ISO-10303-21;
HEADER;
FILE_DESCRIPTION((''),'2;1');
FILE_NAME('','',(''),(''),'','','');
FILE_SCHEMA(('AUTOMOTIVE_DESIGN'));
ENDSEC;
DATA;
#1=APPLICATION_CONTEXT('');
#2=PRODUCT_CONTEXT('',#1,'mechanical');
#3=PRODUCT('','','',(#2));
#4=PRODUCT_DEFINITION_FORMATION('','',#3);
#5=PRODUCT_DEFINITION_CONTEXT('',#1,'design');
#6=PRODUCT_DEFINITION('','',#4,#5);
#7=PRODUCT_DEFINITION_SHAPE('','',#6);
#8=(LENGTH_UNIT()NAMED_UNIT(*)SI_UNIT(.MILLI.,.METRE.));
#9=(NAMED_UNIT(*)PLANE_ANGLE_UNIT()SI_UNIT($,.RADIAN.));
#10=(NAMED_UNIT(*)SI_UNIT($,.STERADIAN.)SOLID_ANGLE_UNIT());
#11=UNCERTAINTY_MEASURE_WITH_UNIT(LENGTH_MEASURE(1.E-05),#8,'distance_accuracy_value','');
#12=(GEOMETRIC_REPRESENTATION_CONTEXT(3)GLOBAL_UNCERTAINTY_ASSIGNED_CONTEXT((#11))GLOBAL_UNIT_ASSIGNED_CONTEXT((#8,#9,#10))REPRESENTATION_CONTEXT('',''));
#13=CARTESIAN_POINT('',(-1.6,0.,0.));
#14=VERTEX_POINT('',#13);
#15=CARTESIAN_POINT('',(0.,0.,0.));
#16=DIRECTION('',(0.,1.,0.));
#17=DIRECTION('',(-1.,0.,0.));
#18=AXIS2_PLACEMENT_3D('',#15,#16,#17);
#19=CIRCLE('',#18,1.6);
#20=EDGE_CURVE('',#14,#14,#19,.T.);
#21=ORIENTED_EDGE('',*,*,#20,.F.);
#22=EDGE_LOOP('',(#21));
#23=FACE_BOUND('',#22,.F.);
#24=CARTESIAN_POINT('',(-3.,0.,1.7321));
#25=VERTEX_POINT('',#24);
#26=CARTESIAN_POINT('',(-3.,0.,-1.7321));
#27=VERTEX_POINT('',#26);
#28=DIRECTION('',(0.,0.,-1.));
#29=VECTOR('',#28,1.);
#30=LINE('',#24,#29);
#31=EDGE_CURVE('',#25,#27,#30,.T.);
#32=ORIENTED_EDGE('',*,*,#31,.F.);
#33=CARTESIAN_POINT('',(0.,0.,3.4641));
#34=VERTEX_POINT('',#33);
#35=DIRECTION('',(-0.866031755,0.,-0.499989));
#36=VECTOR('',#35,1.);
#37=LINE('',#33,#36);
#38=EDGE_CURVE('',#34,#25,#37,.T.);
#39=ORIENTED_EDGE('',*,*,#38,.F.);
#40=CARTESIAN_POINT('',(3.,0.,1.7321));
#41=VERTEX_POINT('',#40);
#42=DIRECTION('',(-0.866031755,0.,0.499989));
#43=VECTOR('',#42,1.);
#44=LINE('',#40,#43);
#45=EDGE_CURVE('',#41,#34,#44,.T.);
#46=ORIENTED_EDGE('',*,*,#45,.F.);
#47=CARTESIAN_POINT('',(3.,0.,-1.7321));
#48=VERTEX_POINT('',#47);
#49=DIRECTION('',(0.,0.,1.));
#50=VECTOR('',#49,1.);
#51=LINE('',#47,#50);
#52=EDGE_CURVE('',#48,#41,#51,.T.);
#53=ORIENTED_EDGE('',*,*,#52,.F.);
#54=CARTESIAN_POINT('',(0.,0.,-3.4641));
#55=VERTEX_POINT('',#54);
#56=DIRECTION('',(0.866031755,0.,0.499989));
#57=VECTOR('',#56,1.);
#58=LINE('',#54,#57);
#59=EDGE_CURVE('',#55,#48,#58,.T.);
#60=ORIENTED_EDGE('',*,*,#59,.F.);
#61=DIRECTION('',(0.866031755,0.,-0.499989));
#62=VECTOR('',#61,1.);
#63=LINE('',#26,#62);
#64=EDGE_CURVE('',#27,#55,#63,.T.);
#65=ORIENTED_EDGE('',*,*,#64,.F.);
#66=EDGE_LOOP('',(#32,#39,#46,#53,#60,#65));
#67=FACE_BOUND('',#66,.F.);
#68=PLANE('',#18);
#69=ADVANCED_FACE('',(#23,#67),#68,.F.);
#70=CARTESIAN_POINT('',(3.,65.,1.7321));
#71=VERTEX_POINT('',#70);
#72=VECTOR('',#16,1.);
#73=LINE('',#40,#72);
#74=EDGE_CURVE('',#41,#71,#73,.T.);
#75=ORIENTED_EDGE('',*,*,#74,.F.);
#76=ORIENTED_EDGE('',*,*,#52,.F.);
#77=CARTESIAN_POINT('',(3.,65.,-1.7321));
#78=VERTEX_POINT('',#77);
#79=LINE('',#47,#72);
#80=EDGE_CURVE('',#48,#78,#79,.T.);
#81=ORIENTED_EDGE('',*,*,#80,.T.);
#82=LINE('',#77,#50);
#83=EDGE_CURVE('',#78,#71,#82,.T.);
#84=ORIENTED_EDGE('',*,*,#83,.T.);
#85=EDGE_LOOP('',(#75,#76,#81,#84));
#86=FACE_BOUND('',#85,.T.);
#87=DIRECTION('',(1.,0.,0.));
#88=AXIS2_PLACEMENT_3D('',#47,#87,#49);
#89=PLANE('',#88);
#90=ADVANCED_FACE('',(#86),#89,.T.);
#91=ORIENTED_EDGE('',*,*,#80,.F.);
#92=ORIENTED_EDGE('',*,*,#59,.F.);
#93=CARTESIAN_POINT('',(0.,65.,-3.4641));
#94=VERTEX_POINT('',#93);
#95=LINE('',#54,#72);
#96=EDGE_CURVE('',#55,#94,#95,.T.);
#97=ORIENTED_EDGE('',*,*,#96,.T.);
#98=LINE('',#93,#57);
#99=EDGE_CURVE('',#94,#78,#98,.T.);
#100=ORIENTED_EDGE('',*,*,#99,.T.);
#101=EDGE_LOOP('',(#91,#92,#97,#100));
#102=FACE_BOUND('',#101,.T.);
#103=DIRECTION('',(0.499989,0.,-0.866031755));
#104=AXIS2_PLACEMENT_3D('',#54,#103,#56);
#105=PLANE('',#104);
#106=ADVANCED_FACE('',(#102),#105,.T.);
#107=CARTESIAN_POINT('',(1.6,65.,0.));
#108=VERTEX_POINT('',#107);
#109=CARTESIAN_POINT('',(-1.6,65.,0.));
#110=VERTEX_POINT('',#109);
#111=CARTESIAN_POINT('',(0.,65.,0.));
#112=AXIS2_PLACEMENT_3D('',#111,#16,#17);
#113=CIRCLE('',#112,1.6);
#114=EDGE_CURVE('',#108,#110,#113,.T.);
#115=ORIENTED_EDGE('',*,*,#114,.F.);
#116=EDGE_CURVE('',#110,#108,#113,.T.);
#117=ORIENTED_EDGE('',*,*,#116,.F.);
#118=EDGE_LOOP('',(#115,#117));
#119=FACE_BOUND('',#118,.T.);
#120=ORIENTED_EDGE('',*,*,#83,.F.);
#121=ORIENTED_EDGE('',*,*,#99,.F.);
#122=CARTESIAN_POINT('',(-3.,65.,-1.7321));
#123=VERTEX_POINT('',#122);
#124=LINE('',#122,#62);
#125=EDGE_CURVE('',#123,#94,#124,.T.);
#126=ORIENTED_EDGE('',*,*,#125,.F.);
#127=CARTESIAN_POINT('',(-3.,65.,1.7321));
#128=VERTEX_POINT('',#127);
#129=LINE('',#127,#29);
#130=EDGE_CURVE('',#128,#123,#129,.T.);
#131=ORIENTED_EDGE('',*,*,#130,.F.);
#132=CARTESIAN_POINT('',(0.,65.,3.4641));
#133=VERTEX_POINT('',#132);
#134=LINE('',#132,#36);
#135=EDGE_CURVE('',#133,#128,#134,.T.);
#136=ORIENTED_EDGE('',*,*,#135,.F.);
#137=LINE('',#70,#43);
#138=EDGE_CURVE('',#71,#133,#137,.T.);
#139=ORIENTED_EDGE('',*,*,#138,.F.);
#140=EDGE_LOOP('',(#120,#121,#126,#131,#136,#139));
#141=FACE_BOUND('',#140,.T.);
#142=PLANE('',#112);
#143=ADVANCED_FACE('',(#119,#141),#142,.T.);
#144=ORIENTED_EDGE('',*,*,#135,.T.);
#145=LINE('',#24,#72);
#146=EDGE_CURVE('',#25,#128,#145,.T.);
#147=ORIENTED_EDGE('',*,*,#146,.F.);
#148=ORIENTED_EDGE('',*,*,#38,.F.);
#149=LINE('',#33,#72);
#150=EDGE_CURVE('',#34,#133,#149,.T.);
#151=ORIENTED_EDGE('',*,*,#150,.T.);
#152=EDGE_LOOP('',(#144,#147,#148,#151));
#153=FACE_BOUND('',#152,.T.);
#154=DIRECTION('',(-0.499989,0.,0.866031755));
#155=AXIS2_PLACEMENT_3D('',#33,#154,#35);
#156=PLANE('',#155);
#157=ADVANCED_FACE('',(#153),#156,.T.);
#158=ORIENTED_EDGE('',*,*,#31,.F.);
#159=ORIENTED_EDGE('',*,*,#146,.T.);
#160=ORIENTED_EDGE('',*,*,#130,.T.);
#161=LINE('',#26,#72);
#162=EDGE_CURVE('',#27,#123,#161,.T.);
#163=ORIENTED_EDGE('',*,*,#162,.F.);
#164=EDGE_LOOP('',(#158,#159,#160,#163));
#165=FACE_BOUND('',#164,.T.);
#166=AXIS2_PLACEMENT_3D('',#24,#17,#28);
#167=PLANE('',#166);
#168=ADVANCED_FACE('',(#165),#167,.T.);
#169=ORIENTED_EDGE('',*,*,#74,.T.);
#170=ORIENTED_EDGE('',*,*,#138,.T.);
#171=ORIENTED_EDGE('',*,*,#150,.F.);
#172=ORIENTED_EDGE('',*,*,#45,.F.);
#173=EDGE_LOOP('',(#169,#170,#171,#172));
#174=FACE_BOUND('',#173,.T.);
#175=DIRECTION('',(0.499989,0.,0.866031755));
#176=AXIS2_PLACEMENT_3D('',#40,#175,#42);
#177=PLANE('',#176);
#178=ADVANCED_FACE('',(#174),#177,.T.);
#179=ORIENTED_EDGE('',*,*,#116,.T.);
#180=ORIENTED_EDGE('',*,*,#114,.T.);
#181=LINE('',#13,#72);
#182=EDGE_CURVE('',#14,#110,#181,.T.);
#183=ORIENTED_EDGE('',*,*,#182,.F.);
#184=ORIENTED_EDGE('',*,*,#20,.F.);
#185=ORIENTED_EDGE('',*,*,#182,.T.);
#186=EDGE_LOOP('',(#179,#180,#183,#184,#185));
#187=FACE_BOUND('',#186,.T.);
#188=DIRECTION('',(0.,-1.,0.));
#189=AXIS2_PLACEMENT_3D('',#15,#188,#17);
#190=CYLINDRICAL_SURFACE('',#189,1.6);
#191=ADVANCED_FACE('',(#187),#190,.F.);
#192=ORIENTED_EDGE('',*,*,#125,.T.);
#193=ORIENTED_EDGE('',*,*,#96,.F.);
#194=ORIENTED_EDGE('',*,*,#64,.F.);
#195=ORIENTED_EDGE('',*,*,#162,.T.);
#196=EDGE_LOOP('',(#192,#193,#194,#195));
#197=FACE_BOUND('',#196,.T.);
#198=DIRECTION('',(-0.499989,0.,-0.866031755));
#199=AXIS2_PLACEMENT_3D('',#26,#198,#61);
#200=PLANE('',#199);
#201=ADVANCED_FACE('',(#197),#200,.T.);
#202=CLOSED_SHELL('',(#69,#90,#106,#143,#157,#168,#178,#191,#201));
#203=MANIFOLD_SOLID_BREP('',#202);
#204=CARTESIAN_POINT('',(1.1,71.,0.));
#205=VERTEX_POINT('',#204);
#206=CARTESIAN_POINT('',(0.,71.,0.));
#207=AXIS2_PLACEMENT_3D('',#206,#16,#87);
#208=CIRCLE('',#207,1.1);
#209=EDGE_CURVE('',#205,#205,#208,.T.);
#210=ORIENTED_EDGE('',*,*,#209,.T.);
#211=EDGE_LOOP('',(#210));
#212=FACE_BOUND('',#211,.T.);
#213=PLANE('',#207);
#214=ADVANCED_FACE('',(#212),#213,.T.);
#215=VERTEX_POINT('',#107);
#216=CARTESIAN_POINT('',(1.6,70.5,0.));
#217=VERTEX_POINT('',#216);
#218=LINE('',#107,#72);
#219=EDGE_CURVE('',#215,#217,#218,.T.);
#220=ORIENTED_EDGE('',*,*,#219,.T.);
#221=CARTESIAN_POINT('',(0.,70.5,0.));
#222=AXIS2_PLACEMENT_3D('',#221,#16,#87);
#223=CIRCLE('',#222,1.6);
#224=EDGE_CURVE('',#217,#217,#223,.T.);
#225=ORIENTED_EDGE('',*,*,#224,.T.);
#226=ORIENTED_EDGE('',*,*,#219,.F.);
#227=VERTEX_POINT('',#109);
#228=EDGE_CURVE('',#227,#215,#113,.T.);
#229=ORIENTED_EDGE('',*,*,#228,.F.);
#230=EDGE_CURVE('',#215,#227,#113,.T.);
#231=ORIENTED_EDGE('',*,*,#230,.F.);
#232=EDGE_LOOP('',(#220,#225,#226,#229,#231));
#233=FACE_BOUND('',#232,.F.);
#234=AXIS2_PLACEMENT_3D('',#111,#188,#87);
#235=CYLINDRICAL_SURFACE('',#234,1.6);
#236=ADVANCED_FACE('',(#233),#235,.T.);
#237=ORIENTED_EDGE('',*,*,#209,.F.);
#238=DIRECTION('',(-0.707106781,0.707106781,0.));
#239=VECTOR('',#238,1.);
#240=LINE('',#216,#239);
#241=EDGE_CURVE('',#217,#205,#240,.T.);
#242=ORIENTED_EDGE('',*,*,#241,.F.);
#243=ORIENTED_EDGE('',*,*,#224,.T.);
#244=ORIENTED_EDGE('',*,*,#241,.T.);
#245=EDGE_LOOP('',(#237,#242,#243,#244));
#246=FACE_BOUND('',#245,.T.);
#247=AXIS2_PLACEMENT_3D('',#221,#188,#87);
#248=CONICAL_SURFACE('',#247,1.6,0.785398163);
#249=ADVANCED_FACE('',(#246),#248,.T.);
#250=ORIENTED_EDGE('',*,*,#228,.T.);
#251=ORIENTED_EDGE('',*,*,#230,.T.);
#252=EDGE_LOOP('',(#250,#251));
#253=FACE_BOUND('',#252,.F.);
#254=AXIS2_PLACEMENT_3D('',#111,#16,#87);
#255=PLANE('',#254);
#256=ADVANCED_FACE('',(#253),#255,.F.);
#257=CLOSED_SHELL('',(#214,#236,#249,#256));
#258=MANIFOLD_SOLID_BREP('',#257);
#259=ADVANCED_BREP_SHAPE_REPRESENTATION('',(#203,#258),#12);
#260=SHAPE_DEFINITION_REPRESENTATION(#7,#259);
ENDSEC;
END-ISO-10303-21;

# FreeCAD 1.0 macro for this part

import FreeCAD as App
import Part
import Sketcher
from FreeCAD import Vector
Q = App.Units.Quantity


def edges_at(feature, points):
    """Names of the edges that pass closest to the given points."""
    edges = feature.Shape.Edges
    near = lambda p: min(range(len(edges)), key=lambda i: edges[i].distToShape(Part.Vertex(*p))[0])
    return sorted({f"Edge{near(p) + 1}" for p in points})


def add_polygon(sketch, points):
    """Adds a closed chain of lines whose ends are joined by coincident constraints."""
    first, n = sketch.GeometryCount, len(points)
    for a, b in zip(points, points[1:] + points[:1]):
        sketch.addGeometry(Part.LineSegment(App.Vector(*a, 0), App.Vector(*b, 0)), False)
    for i in range(n):
        sketch.addConstraint(Sketcher.Constraint("Coincident", first + i, 2, first + (i + 1) % n, 1))

doc = App.newDocument("Part")
body = doc.addObject("PartDesign::Body", "Body")
body.AllowCompound = True

# Sketch on XZ plane
sketch1 = body.newObject("Sketcher::SketchObject", "Sketch")
sketch1.AttachmentSupport = (doc.getObject("XZ_Plane"), [""])
sketch1.MapMode = "FlatFace"
add_polygon(sketch1, [(3, -1.7), (0, -3.5), (-3, -1.7), (-3, 1.7), (0, 3.5), (3, 1.7)])  # lines 0-5
sketch1.addGeometry(Part.Circle(Vector(0, 0, 0), Vector(0, 0, 1), 1.6), False)  # 6
sketch1.addConstraint([
    Sketcher.Constraint("Vertical", 2),
    Sketcher.Constraint("Vertical", 5),
    Sketcher.Constraint("Coincident", 6, 3, -1, 1),
    Sketcher.Constraint("Symmetric", 0, 2, 3, 2, -1, 1),
    Sketcher.Constraint("Symmetric", 1, 2, 4, 2, -1, 1),
    Sketcher.Constraint("PointOnObject", 0, 2, -2),
    Sketcher.Constraint("Parallel", 0, 3),
    Sketcher.Constraint("Horizontal", 2, 2, 4, 2),
    Sketcher.Constraint("Diameter", 6, Q("3.2 mm")),
    Sketcher.Constraint("DistanceX", 2, 2, 4, 2, Q("6 mm")),
    Sketcher.Constraint("Angle", 0, Q("-150.0007 deg")),
    Sketcher.Constraint("DistanceY", 2, 1, 2, 2, Q("3.4642 mm")),
])
pad1 = body.newObject("PartDesign::Pad", "Pad")
pad1.Profile = sketch1
pad1.Length = 65
pad1.Reversed = True

# Sketch on XZ plane
sketch2 = body.newObject("Sketcher::SketchObject", "Sketch001")
sketch2.AttachmentSupport = (doc.getObject("XZ_Plane"), [""])
sketch2.MapMode = "FlatFace"
sketch2.AttachmentOffset = App.Placement(Vector(0, 0, -65), App.Rotation())
sketch2.addGeometry(Part.Circle(Vector(0, 0, 0), Vector(0, 0, 1), 1.6), False)
sketch2.addConstraint([
    Sketcher.Constraint("Coincident", 0, 3, -1, 1),
    Sketcher.Constraint("Diameter", 0, Q("3.2 mm")),
])
pad2 = body.newObject("PartDesign::Pad", "Pad001")
pad2.Profile = sketch2
pad2.Length = 6
pad2.Reversed = True
doc.recompute()

chamfer = body.newObject("PartDesign::Chamfer", "Chamfer")
chamfer.Base = (pad2, edges_at(pad2, [(-1.6, 71, 0)]))
chamfer.Size = 0.5

doc.recompute()
